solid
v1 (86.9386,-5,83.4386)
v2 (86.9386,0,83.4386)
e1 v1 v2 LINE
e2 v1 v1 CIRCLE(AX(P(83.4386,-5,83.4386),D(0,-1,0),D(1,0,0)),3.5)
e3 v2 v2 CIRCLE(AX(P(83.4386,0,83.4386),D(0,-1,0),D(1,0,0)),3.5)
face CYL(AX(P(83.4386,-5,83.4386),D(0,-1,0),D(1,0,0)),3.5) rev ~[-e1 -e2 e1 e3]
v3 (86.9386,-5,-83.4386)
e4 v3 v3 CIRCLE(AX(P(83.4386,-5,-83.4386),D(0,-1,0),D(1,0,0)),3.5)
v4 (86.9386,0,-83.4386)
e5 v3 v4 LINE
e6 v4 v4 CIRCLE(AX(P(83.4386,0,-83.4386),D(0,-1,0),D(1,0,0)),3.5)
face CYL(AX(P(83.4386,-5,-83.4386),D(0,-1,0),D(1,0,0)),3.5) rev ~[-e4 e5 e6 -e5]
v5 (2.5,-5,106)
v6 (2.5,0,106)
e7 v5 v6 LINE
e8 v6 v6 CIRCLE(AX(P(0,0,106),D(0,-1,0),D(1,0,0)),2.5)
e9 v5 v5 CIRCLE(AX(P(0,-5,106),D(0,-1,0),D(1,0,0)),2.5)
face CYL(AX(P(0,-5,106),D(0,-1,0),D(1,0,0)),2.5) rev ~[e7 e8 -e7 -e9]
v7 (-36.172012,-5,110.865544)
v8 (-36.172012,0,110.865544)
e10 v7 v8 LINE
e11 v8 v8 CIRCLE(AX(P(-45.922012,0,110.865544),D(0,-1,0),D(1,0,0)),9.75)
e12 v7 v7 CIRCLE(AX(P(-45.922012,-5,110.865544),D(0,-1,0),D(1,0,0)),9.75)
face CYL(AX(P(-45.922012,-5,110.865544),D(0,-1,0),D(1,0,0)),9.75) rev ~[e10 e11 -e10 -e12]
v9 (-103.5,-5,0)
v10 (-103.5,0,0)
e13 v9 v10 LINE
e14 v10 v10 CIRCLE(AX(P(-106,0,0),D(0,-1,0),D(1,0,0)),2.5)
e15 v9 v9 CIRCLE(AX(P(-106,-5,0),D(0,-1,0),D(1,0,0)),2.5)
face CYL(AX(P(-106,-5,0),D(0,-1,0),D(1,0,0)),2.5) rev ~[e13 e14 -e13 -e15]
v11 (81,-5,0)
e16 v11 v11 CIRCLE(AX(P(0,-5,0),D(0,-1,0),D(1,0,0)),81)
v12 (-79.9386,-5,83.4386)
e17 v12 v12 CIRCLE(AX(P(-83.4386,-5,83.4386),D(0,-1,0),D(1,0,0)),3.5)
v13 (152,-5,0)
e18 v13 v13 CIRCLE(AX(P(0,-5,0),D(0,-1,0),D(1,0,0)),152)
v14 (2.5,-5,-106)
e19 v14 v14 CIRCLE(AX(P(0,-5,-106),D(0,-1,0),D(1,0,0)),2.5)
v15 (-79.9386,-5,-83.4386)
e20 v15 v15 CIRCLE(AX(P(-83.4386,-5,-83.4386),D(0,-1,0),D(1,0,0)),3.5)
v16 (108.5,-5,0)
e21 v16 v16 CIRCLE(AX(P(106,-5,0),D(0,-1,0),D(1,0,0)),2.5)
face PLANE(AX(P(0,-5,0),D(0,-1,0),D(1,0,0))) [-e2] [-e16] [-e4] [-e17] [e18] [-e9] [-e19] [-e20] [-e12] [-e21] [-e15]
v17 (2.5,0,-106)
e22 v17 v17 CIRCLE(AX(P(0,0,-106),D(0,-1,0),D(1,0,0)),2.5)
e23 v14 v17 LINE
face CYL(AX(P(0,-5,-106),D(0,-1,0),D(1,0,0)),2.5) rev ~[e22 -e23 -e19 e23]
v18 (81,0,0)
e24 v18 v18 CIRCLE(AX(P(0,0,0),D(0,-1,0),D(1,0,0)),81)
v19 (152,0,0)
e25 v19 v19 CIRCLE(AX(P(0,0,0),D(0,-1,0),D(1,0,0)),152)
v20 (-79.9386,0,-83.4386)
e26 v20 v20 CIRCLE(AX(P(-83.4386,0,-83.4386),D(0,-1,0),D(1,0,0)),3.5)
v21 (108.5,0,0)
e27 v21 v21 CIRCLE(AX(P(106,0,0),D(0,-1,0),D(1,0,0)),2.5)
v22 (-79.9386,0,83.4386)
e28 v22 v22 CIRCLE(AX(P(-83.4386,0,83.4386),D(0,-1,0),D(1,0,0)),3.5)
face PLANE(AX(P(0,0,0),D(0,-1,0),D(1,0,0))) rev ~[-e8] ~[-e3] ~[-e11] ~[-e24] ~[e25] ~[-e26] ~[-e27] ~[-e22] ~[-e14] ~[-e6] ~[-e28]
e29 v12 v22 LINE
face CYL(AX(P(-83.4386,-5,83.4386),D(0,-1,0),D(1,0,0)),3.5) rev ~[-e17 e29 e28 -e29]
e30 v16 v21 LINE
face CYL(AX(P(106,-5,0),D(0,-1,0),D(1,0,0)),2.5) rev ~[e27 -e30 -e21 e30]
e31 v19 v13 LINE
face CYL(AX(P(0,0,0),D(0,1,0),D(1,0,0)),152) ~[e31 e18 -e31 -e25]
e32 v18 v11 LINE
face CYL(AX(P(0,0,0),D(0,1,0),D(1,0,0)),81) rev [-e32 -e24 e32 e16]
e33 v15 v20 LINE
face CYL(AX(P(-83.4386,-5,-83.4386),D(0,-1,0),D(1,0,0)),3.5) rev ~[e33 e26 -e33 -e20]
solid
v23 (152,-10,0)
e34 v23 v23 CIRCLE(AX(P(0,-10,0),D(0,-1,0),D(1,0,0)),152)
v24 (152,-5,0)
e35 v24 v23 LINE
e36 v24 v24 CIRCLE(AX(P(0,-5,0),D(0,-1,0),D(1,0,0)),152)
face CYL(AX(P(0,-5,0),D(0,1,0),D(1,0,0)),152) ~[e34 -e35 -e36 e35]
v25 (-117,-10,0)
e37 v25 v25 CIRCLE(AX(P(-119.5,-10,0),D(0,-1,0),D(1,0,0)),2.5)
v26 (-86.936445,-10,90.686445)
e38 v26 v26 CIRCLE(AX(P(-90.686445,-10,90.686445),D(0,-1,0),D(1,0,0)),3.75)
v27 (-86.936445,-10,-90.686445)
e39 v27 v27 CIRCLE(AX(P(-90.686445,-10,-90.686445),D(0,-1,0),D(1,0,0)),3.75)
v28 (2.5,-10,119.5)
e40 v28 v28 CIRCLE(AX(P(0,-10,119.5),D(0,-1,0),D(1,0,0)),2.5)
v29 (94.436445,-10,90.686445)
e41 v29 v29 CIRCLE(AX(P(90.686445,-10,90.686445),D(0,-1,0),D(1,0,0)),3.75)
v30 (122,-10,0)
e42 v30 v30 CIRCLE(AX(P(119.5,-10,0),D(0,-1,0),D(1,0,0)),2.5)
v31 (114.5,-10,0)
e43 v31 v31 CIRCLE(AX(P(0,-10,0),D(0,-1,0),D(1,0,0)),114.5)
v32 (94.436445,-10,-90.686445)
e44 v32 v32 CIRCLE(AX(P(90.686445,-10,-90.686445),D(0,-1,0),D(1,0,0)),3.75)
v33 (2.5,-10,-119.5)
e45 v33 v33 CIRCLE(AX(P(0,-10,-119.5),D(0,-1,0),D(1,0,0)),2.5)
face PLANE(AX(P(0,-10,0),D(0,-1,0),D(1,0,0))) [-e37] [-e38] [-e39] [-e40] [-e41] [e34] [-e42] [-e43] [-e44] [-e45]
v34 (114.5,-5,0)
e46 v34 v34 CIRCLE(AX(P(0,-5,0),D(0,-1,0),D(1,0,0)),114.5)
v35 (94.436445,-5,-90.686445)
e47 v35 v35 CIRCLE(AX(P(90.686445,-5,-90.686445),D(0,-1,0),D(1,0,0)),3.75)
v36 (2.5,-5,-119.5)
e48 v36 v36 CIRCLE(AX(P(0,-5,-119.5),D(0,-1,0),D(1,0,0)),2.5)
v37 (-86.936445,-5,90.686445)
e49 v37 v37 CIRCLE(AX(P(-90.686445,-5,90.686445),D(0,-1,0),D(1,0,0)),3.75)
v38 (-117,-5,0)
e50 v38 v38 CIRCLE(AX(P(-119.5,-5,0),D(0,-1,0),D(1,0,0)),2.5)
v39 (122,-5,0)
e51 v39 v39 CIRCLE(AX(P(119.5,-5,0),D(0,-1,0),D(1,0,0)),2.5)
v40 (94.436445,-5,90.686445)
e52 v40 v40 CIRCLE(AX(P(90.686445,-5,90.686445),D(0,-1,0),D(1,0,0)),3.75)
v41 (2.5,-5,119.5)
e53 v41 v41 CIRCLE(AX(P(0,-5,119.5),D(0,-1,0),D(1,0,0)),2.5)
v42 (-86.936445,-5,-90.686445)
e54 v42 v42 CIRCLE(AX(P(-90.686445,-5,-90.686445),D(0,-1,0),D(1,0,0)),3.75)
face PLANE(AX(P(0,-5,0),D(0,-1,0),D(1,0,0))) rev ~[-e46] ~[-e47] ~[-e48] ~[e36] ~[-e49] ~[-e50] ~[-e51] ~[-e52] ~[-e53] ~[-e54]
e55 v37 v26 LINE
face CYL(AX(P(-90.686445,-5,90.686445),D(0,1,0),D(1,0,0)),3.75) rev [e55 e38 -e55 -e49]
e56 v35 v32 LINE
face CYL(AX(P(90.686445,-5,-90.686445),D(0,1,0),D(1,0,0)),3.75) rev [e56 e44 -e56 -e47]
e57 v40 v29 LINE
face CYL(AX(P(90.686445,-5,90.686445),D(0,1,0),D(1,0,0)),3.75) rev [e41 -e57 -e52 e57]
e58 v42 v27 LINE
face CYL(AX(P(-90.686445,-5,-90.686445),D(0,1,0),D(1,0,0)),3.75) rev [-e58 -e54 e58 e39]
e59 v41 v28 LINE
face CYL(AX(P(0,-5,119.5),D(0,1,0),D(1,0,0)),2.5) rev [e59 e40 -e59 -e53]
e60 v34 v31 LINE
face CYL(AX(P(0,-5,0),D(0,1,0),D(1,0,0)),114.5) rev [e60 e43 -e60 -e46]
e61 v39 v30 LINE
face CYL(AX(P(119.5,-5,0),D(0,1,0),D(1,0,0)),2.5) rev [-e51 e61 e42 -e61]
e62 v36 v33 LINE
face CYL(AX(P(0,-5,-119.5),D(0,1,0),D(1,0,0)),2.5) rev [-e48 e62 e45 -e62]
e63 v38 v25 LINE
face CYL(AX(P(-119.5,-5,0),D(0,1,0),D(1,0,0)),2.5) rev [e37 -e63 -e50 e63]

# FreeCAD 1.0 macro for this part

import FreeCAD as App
import Part
import Sketcher
from FreeCAD import Vector
Q = App.Units.Quantity

doc = App.newDocument("Part")
body = doc.addObject("PartDesign::Body", "Body")

# Sketch on XZ plane
sketch1 = doc.addObject("Sketcher::SketchObject", "Sketch")
body.addObject(sketch1)
sketch1.AttachmentSupport = (doc.XZ_Plane, [""])
sketch1.MapMode = "FlatFace"
sketch1.addGeometry(Part.Circle(Vector(0, 0, 0), Vector(0, 0, 1), 152), False)
sketch1.addGeometry(Part.Circle(Vector(0, 0, 0), Vector(0, 0, 1), 81), False)
sketch1.addConstraint(Sketcher.Constraint("Coincident", 0, 3, -1, 1))
sketch1.addConstraint(Sketcher.Constraint("Coincident", 1, 3, -1, 1))
sketch1.addConstraint(Sketcher.Constraint("Diameter", 0, Q("304 mm")))
sketch1.addConstraint(Sketcher.Constraint("Diameter", 1, Q("162 mm")))
pad1 = doc.addObject("PartDesign::Pad", "Pad")
body.addObject(pad1)
pad1.Profile = sketch1
pad1.Length = 5

# Sketch on XZ plane
sketch2 = doc.addObject("Sketcher::SketchObject", "Sketch001")
body.addObject(sketch2)
sketch2.AttachmentSupport = (doc.XZ_Plane, [""])
sketch2.MapMode = "FlatFace"
sketch2.AttachmentOffset = App.Placement(Vector(0, 0, 5), App.Rotation())
sketch2.addGeometry(Part.Circle(Vector(0, 106, 0), Vector(0, 0, 1), 2.5), False)
sketch2.addConstraint(Sketcher.Constraint("PointOnObject", 0, 3, -2))
sketch2.addConstraint(Sketcher.Constraint("Diameter", 0, Q("5 mm")))
sketch2.addConstraint(Sketcher.Constraint("DistanceY", -1, 1, 0, 3, Q("106 mm")))
pocket1 = doc.addObject("PartDesign::Pocket", "Pocket")
body.addObject(pocket1)
pocket1.Profile = sketch2
pocket1.Length = 5

# Sketch on XZ plane
sketch3 = doc.addObject("Sketcher::SketchObject", "Sketch002")
body.addObject(sketch3)
sketch3.AttachmentSupport = (doc.XZ_Plane, [""])
sketch3.MapMode = "FlatFace"
sketch3.AttachmentOffset = App.Placement(Vector(0, 0, 5), App.Rotation())
sketch3.addGeometry(Part.Circle(Vector(-106, 0, 0), Vector(0, 0, 1), 2.5), False)
sketch3.addConstraint(Sketcher.Constraint("PointOnObject", 0, 3, -1))
sketch3.addConstraint(Sketcher.Constraint("Diameter", 0, Q("5 mm")))
sketch3.addConstraint(Sketcher.Constraint("DistanceX", 0, 3, -1, 1, Q("106 mm")))
pocket2 = doc.addObject("PartDesign::Pocket", "Pocket001")
body.addObject(pocket2)
pocket2.Profile = sketch3
pocket2.Length = 5

# Sketch on XZ plane
sketch4 = doc.addObject("Sketcher::SketchObject", "Sketch003")
body.addObject(sketch4)
sketch4.AttachmentSupport = (doc.XZ_Plane, [""])
sketch4.MapMode = "FlatFace"
sketch4.AttachmentOffset = App.Placement(Vector(0, 0, 5), App.Rotation())
sketch4.addGeometry(Part.Circle(Vector(0, -106, 0), Vector(0, 0, 1), 2.5), False)
sketch4.addConstraint(Sketcher.Constraint("PointOnObject", 0, 3, -2))
sketch4.addConstraint(Sketcher.Constraint("Diameter", 0, Q("5 mm")))
sketch4.addConstraint(Sketcher.Constraint("DistanceY", 0, 3, -1, 1, Q("106 mm")))
pocket3 = doc.addObject("PartDesign::Pocket", "Pocket002")
body.addObject(pocket3)
pocket3.Profile = sketch4
pocket3.Length = 5

# Sketch on XZ plane
sketch5 = doc.addObject("Sketcher::SketchObject", "Sketch004")
body.addObject(sketch5)
sketch5.AttachmentSupport = (doc.XZ_Plane, [""])
sketch5.MapMode = "FlatFace"
sketch5.AttachmentOffset = App.Placement(Vector(0, 0, 5), App.Rotation())
sketch5.addGeometry(Part.Circle(Vector(106, 0, 0), Vector(0, 0, 1), 2.5), False)
sketch5.addConstraint(Sketcher.Constraint("PointOnObject", 0, 3, -1))
sketch5.addConstraint(Sketcher.Constraint("Diameter", 0, Q("5 mm")))
sketch5.addConstraint(Sketcher.Constraint("DistanceX", -1, 1, 0, 3, Q("106 mm")))
pocket4 = doc.addObject("PartDesign::Pocket", "Pocket003")
body.addObject(pocket4)
pocket4.Profile = sketch5
pocket4.Length = 5

# Sketch on XZ plane
sketch6 = doc.addObject("Sketcher::SketchObject", "Sketch005")
body.addObject(sketch6)
sketch6.AttachmentSupport = (doc.XZ_Plane, [""])
sketch6.MapMode = "FlatFace"
sketch6.AttachmentOffset = App.Placement(Vector(0, 0, 5), App.Rotation())
sketch6.addGeometry(Part.Circle(Vector(83.4386, 83.4386, 0), Vector(0, 0, 1), 3.5), False)
sketch6.addGeometry(Part.Circle(Vector(83.4386, -83.4386, 0), Vector(0, 0, 1), 3.5), False)
sketch6.addGeometry(Part.Circle(Vector(-83.4386, -83.4386, 0), Vector(0, 0, 1), 3.5), False)
sketch6.addGeometry(Part.Circle(Vector(-83.4386, 83.4386, 0), Vector(0, 0, 1), 3.5), False)
sketch6.addGeometry(Part.Circle(Vector(-45.922012, 110.865544, 0), Vector(0, 0, 1), 9.75), False)
sketch6.addConstraint(Sketcher.Constraint("Equal", 0, 1))
sketch6.addConstraint(Sketcher.Constraint("Equal", 1, 2))
sketch6.addConstraint(Sketcher.Constraint("Equal", 2, 3))
sketch6.addConstraint(Sketcher.Constraint("Symmetric", 0, 3, 2, 3, -1, 1))
sketch6.addConstraint(Sketcher.Constraint("Symmetric", 1, 3, 3, 3, -1, 1))
sketch6.addConstraint(Sketcher.Constraint("Symmetric", 1, 3, 2, 3, -2))
sketch6.addConstraint(Sketcher.Constraint("Diameter", 0, Q("7 mm")))
sketch6.addConstraint(Sketcher.Constraint("Diameter", 4, Q("19.5 mm")))
sketch6.addConstraint(Sketcher.Constraint("DistanceX", -1, 1, 0, 3, Q("83.4386 mm")))
sketch6.addConstraint(Sketcher.Constraint("DistanceY", -1, 1, 0, 3, Q("83.4386 mm")))
sketch6.addConstraint(Sketcher.Constraint("DistanceX", 4, 3, 0, 3, Q("129.360612 mm")))
sketch6.addConstraint(Sketcher.Constraint("DistanceY", -1, 1, 4, 3, Q("110.865544 mm")))
pocket5 = doc.addObject("PartDesign::Pocket", "Pocket004")
body.addObject(pocket5)
pocket5.Profile = sketch6
pocket5.Type = "ThroughAll"
body2 = doc.addObject("PartDesign::Body", "Body001")

# Sketch on XZ plane
sketch7 = doc.addObject("Sketcher::SketchObject", "Sketch006")
body2.addObject(sketch7)
sketch7.AttachmentSupport = (doc.getObject("XZ_Plane001"), [""])
sketch7.MapMode = "FlatFace"
sketch7.AttachmentOffset = App.Placement(Vector(0, 0, 5), App.Rotation())
sketch7.addGeometry(Part.Circle(Vector(0, 0, 0), Vector(0, 0, 1), 152), False)
sketch7.addGeometry(Part.Circle(Vector(-90.686445, -90.686445, 0), Vector(0, 0, 1), 3.75), False)
sketch7.addGeometry(Part.Circle(Vector(0, -119.5, 0), Vector(0, 0, 1), 2.5), False)
sketch7.addGeometry(Part.Circle(Vector(90.686445, -90.686445, 0), Vector(0, 0, 1), 3.75), False)
sketch7.addGeometry(Part.Circle(Vector(-119.5, 0, 0), Vector(0, 0, 1), 2.5), False)
sketch7.addGeometry(Part.Circle(Vector(-90.686445, 90.686445, 0), Vector(0, 0, 1), 3.75), False)
sketch7.addGeometry(Part.Circle(Vector(0, 0, 0), Vector(0, 0, 1), 114.5), False)
sketch7.addGeometry(Part.Circle(Vector(119.5, 0, 0), Vector(0, 0, 1), 2.5), False)
sketch7.addGeometry(Part.Circle(Vector(0, 119.5, 0), Vector(0, 0, 1), 2.5), False)
sketch7.addGeometry(Part.Circle(Vector(90.686445, 90.686445, 0), Vector(0, 0, 1), 3.75), False)
sketch7.addConstraint(Sketcher.Constraint("Coincident", 0, 3, -1, 1))
sketch7.addConstraint(Sketcher.Constraint("Coincident", 6, 3, -1, 1))
sketch7.addConstraint(Sketcher.Constraint("Equal", 1, 3))
sketch7.addConstraint(Sketcher.Constraint("Equal", 2, 4))
sketch7.addConstraint(Sketcher.Constraint("Equal", 3, 5))
sketch7.addConstraint(Sketcher.Constraint("Equal", 4, 7))
sketch7.addConstraint(Sketcher.Constraint("Equal", 7, 8))
sketch7.addConstraint(Sketcher.Constraint("Equal", 5, 9))
sketch7.addConstraint(Sketcher.Constraint("Symmetric", 3, 3, 5, 3, -1, 1))
sketch7.addConstraint(Sketcher.Constraint("Symmetric", 4, 3, 7, 3, -1, 1))
sketch7.addConstraint(Sketcher.Constraint("Symmetric", 2, 3, 8, 3, -1, 1))
sketch7.addConstraint(Sketcher.Constraint("Symmetric", 1, 3, 9, 3, -1, 1))
sketch7.addConstraint(Sketcher.Constraint("Symmetric", 1, 3, 3, 3, -2))
sketch7.addConstraint(Sketcher.Constraint("PointOnObject", 2, 3, -2))
sketch7.addConstraint(Sketcher.Constraint("PointOnObject", 4, 3, -1))
sketch7.addConstraint(Sketcher.Constraint("Diameter", 0, Q("304 mm")))
sketch7.addConstraint(Sketcher.Constraint("Diameter", 2, Q("5 mm")))
sketch7.addConstraint(Sketcher.Constraint("Diameter", 6, Q("229 mm")))
sketch7.addConstraint(Sketcher.Constraint("Diameter", 1, Q("7.5 mm")))
sketch7.addConstraint(Sketcher.Constraint("DistanceY", 2, 3, -1, 1, Q("119.5 mm")))
sketch7.addConstraint(Sketcher.Constraint("DistanceX", 4, 3, -1, 1, Q("119.5 mm")))
sketch7.addConstraint(Sketcher.Constraint("DistanceX", 1, 3, 3, 3, Q("181.37289 mm")))
sketch7.addConstraint(Sketcher.Constraint("DistanceY", 1, 3, 5, 3, Q("181.37289 mm")))
pad2 = doc.addObject("PartDesign::Pad", "Pad001")
body2.addObject(pad2)
pad2.Profile = sketch7
pad2.Length = 5

doc.recompute()
